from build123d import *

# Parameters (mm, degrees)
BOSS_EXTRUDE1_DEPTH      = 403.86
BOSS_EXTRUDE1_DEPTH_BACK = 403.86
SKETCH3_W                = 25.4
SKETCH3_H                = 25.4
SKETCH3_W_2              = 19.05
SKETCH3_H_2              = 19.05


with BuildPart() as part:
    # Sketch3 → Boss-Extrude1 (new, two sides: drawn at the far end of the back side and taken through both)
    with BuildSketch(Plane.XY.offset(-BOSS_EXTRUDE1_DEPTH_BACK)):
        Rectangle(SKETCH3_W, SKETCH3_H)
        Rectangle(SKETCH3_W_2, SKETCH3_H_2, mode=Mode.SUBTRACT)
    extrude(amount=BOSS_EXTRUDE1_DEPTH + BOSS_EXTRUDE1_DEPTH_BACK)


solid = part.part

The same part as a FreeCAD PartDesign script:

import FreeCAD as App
import Part
import Sketcher

V = App.Vector
Q = App.Units.Quantity


def add_polygon(sketch, points):
    """Adds a closed chain of lines whose ends are joined by coincident constraints."""
    first, n = sketch.GeometryCount, len(points)
    for a, b in zip(points, points[1:] + points[:1]):
        sketch.addGeometry(Part.LineSegment(App.Vector(*a, 0), App.Vector(*b, 0)), False)
    for i in range(n):
        sketch.addConstraint(Sketcher.Constraint("Coincident", first + i, 2, first + (i + 1) % n, 1))

doc = App.newDocument("Part")
body = doc.addObject("PartDesign::Body", "Body")

# Sketch on XY plane
sketch1 = body.newObject("Sketcher::SketchObject", "Sketch")
sketch1.AttachmentSupport = (doc.getObject("XY_Plane"), [""])
sketch1.MapMode = "FlatFace"
add_polygon(sketch1, [(-12.7, 12.7), (-12.7, -12.7), (12.7, -12.7), (12.7, 12.7)])  # lines 0-3
add_polygon(sketch1, [(9.525, -9.525), (-9.525, -9.525), (-9.525, 9.525), (9.525, 9.525)])  # lines 4-7
sketch1.addConstraint([
    Sketcher.Constraint("Vertical", 0),
    Sketcher.Constraint("Horizontal", 1),
    Sketcher.Constraint("Vertical", 2),
    Sketcher.Constraint("Horizontal", 3),
    Sketcher.Constraint("Horizontal", 4),
    Sketcher.Constraint("Vertical", 5),
    Sketcher.Constraint("Horizontal", 6),
    Sketcher.Constraint("Vertical", 7),
    Sketcher.Constraint("Symmetric", 0, 2, 2, 2, -1, 1),
    Sketcher.Constraint("Symmetric", 4, 2, 6, 2, -1, 1),
    Sketcher.Constraint("Equal", 3, 0),
    Sketcher.Constraint("Equal", 6, 5),
    Sketcher.Constraint("DistanceX", 1, 1, 1, 2, Q("1 in")),
    Sketcher.Constraint("DistanceX", 4, 2, 4, 1, Q("0.75 in")),
])
pad1 = body.newObject("PartDesign::Pad", "Pad")
pad1.Profile = sketch1
pad1.Type = "TwoLengths"
pad1.Length = Q("15.9 in")
pad1.Length2 = Q("15.9 in")

doc.recompute()
